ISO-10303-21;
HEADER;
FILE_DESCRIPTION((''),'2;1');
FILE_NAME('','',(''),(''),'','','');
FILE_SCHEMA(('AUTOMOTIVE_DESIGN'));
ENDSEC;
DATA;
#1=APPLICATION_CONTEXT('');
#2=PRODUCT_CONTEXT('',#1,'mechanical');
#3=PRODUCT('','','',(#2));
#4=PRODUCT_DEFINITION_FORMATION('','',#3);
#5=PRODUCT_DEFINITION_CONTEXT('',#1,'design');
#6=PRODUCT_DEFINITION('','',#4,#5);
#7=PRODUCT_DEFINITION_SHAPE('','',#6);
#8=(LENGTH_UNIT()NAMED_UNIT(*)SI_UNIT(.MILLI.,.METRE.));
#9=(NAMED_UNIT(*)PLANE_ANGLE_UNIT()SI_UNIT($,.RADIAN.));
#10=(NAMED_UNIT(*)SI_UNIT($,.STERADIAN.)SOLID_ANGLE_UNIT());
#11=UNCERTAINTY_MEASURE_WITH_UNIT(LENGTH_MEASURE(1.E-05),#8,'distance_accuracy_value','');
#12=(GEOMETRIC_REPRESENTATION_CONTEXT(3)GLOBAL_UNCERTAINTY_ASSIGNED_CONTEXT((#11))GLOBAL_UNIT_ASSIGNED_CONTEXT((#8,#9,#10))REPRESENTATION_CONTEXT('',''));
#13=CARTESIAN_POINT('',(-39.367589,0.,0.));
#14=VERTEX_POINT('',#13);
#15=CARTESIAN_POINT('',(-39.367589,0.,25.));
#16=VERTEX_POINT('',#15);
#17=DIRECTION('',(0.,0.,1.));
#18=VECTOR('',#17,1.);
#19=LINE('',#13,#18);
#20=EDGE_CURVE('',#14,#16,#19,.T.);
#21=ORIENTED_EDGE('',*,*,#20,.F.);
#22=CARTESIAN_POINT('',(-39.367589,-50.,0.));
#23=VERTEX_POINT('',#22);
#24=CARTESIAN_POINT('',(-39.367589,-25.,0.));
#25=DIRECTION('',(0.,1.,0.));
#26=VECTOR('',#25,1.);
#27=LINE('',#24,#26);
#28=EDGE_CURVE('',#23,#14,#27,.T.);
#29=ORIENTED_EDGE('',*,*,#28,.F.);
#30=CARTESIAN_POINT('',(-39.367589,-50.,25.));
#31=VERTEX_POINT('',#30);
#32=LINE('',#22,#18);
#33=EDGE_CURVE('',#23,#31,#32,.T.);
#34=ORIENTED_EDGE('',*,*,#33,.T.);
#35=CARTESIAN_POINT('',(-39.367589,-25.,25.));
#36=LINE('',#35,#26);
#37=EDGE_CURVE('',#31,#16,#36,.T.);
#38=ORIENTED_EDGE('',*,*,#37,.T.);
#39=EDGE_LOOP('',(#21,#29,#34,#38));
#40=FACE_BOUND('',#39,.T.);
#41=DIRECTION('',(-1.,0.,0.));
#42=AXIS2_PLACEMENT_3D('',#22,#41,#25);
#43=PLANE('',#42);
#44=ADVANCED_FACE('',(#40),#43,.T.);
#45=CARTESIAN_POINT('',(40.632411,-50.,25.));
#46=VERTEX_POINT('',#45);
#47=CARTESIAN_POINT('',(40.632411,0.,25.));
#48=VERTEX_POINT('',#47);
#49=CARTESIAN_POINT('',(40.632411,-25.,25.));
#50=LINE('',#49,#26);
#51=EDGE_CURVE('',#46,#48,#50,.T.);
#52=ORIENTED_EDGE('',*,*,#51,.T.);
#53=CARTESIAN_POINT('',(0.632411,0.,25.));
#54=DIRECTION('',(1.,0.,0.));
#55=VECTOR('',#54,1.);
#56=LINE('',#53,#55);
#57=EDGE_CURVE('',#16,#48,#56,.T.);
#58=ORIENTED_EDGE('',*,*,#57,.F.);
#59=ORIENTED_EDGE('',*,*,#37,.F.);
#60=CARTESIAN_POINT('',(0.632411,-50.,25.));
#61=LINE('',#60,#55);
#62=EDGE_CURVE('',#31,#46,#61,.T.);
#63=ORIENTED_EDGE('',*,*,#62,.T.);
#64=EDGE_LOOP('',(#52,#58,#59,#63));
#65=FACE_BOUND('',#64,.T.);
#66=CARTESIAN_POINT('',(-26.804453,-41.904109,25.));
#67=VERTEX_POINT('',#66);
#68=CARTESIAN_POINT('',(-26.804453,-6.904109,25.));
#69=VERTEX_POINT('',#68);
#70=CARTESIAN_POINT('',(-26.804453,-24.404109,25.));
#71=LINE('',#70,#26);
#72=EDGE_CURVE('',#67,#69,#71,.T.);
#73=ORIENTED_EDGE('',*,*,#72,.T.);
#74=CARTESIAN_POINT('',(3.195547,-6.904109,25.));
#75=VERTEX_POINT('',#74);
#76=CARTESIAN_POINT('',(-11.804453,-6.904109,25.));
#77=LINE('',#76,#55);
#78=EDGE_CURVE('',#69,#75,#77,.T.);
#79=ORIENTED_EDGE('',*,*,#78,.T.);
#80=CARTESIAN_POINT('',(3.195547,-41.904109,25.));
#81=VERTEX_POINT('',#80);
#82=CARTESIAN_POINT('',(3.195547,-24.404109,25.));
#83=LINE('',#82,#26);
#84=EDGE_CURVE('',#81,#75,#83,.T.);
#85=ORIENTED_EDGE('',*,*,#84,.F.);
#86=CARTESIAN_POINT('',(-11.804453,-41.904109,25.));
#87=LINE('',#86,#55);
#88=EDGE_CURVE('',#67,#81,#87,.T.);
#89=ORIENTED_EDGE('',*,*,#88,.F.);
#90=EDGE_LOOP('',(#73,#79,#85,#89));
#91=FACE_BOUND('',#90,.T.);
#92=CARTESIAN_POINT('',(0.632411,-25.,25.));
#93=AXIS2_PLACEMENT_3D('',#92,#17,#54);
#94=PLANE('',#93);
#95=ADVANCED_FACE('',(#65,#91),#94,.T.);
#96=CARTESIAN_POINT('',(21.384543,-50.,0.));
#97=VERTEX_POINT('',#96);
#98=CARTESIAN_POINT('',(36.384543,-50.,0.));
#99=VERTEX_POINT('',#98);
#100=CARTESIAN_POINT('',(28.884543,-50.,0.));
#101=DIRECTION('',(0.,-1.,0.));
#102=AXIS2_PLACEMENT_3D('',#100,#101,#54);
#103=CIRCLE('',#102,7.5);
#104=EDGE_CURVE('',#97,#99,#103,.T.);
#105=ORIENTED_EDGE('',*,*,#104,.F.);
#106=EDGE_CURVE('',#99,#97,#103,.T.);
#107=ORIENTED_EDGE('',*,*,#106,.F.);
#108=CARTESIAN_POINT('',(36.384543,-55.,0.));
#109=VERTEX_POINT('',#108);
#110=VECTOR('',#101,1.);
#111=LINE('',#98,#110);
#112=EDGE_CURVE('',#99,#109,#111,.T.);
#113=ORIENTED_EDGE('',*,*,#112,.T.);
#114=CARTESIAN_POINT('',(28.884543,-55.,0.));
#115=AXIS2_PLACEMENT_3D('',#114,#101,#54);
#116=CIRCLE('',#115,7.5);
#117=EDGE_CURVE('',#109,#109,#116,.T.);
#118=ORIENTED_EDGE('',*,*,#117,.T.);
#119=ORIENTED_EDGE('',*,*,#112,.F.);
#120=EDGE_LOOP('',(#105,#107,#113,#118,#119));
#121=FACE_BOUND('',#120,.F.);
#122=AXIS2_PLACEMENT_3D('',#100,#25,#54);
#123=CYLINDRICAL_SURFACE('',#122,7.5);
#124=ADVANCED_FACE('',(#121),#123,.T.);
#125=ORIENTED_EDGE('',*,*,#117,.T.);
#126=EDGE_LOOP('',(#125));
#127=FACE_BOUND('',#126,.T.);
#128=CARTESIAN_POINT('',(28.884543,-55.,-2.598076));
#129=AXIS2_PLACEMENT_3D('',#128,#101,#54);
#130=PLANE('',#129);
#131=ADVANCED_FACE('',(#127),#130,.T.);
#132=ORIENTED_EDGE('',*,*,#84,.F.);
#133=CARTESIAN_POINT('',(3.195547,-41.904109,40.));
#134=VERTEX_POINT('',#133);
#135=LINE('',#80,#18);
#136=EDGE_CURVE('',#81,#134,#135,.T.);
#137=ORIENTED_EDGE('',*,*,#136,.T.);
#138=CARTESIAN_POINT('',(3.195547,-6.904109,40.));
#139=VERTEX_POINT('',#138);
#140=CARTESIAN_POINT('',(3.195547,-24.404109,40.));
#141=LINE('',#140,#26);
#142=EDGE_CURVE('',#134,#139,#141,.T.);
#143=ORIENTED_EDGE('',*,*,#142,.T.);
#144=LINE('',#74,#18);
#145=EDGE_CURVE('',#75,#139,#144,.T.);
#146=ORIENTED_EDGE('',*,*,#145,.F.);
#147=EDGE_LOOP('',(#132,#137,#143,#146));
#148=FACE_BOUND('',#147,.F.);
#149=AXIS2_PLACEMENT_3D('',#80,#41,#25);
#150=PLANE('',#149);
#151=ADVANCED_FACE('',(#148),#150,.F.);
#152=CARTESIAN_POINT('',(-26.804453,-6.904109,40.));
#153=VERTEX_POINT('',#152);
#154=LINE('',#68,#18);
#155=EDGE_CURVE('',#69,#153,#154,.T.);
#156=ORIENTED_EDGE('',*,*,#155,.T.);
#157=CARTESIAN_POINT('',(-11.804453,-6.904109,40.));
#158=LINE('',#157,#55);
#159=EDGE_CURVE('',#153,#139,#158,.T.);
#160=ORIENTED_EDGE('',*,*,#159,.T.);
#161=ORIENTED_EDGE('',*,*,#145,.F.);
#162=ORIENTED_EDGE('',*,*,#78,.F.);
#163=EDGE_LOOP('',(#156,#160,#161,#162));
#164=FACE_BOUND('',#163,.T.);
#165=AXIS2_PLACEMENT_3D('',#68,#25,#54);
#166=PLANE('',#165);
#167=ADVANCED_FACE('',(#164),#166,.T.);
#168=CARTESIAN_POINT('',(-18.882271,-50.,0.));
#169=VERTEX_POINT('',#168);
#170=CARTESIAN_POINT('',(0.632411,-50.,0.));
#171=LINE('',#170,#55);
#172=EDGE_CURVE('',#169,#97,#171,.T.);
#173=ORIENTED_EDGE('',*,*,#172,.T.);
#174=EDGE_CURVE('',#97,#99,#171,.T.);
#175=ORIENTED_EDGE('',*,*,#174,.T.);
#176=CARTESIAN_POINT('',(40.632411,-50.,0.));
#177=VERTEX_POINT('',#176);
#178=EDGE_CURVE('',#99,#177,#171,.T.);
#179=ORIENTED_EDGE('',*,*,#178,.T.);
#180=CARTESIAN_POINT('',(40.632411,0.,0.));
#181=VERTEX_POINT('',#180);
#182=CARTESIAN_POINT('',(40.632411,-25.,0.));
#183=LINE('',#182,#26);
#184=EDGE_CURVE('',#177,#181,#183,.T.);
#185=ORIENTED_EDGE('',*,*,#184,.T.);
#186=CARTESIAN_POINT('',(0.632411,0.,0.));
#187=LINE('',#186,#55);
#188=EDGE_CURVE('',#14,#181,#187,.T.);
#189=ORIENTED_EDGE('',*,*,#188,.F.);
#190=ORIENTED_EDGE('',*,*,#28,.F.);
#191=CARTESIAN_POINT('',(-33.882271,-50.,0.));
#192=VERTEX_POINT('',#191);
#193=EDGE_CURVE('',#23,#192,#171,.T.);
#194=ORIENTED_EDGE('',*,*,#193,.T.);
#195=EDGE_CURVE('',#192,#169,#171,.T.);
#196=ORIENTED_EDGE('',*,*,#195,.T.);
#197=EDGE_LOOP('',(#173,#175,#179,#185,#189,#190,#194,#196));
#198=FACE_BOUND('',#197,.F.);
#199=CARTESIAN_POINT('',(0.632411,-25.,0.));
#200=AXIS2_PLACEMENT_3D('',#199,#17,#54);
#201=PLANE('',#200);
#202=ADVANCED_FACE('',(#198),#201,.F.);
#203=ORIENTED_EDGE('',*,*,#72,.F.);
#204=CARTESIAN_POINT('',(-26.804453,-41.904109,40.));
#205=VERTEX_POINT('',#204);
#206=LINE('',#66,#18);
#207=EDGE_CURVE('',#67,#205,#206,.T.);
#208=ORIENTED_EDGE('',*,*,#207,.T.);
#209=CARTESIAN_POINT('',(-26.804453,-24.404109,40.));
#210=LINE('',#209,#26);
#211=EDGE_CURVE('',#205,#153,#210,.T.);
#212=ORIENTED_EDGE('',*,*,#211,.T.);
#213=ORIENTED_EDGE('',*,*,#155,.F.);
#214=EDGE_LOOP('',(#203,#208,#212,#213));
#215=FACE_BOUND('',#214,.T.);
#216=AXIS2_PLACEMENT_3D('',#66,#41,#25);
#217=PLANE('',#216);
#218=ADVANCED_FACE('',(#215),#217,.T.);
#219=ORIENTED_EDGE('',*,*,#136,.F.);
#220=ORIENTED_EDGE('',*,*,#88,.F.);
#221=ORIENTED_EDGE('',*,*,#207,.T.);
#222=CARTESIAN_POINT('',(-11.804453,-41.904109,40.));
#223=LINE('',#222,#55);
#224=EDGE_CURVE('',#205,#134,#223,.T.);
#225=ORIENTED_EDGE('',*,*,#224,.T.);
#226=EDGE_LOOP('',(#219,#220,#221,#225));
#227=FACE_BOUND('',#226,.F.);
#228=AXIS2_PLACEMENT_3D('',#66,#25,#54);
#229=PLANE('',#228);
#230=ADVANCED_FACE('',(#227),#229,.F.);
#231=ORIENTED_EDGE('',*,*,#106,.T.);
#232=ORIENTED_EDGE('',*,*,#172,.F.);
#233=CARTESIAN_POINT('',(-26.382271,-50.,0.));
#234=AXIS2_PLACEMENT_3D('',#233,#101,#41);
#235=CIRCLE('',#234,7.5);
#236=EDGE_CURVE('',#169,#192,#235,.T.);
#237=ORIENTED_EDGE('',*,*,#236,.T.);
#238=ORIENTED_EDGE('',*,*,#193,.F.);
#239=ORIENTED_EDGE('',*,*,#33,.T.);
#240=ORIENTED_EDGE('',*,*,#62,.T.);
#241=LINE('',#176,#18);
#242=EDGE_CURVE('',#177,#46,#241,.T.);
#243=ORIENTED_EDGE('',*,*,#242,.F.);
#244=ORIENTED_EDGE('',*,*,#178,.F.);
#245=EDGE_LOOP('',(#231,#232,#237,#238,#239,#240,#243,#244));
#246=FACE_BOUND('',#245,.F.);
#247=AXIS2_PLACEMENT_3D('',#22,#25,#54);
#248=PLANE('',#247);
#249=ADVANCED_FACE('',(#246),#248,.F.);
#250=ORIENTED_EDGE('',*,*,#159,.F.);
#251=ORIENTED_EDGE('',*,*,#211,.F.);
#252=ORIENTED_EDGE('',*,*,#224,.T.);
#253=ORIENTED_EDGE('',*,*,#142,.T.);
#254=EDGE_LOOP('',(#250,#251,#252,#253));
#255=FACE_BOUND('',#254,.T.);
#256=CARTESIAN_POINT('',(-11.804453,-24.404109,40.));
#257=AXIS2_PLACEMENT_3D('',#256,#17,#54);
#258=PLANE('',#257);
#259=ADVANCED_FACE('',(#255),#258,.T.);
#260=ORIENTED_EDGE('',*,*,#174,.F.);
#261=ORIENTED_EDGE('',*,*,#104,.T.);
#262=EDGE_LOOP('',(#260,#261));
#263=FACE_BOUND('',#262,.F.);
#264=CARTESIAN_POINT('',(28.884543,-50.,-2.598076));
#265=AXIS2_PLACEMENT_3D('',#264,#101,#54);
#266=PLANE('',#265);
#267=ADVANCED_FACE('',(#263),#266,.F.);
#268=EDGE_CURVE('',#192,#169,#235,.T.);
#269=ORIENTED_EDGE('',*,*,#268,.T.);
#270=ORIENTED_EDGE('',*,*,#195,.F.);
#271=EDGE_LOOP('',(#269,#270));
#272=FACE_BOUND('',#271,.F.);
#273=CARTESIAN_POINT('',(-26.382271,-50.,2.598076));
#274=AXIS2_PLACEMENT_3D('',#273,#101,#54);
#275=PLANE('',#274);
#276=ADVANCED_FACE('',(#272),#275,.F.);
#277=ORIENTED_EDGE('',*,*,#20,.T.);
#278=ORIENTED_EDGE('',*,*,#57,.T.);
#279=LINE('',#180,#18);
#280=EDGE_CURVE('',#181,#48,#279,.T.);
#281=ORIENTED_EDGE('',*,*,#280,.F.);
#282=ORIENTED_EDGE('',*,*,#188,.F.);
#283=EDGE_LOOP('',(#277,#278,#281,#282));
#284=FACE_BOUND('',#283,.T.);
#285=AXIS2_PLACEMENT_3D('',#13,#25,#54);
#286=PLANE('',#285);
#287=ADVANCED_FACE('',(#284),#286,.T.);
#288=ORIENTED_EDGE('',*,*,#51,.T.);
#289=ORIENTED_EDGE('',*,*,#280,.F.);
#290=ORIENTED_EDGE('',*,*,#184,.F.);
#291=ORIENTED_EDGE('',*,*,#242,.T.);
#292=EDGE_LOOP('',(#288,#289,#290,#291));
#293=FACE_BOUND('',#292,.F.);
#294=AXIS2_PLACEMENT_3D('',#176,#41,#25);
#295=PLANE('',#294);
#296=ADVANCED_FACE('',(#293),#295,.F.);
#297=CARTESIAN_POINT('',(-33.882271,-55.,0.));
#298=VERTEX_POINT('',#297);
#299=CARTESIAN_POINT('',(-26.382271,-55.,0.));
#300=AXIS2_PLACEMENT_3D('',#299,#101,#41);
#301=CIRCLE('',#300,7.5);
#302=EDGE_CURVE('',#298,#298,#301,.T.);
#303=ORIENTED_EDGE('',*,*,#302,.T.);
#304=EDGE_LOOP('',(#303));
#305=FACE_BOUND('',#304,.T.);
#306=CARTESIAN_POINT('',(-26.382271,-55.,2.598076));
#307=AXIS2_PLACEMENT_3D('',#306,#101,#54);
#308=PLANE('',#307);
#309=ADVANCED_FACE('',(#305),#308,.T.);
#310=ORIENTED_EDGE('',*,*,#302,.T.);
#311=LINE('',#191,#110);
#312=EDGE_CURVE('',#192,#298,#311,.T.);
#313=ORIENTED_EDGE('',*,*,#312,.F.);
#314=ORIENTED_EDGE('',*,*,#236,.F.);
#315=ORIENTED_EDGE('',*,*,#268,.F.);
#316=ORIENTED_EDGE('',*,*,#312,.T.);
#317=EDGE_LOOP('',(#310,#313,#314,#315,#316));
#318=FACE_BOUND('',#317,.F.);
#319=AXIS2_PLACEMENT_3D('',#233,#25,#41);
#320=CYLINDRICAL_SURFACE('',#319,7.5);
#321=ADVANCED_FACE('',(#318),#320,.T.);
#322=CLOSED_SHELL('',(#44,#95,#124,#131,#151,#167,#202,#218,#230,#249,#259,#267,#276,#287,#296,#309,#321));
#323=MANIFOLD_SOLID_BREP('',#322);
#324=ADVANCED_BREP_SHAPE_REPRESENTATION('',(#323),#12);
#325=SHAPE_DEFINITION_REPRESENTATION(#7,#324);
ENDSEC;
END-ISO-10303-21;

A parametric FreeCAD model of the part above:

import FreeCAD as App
import Part
import Sketcher
from FreeCAD import Vector
Q = App.Units.Quantity

doc = App.newDocument("Part")
params = doc.addObject("Spreadsheet::Sheet", "Params")
for row, (alias, value) in enumerate([
    ("sketch1_width", "80 mm"),
    ("sketch1_height", "50 mm"),
    ("pad1_length", "25 mm"),
    ("sketch2_width", "30 mm"),
    ("sketch2_height", "35 mm"),
    ("pad2_length", "15 mm"),
    ("sketch3_diameter", "15 mm"),
    ("pad3_length", "5 mm"),
], start=1):
    params.set(f"A{row}", alias)
    params.set(f"B{row}", "=" + value)
    params.setAlias(f"B{row}", alias)

body = doc.addObject("PartDesign::Body", "Body")

# Sketch on XY plane
sketch1 = body.newObject("Sketcher::SketchObject", "Sketch")
sketch1.AttachmentSupport = (doc.getObject("XY_Plane"), [""])
sketch1.MapMode = "FlatFace"
sketch1.addGeometry([
    Part.LineSegment(Vector(-39, 0, 0), Vector(-39, -50, 0)),
    Part.LineSegment(Vector(-39, -50, 0), Vector(41, -50, 0)),
    Part.LineSegment(Vector(41, -50, 0), Vector(41, 0, 0)),
    Part.LineSegment(Vector(41, 0, 0), Vector(-39, 0, 0)),
], False)
sketch1.addConstraint([
    Sketcher.Constraint("Coincident", 0, 2, 1, 1),
    Sketcher.Constraint("Coincident", 1, 2, 2, 1),
    Sketcher.Constraint("Coincident", 2, 2, 3, 1),
    Sketcher.Constraint("Coincident", 3, 2, 0, 1),
    Sketcher.Constraint("Vertical", 0),
    Sketcher.Constraint("Horizontal", 1),
    Sketcher.Constraint("Vertical", 2),
    Sketcher.Constraint("Horizontal", 3),
    Sketcher.Constraint("PointOnObject", 2, 2, -1),
    Sketcher.Constraint("DistanceX", 1, 1, 1, 2, Q("80 mm")),
    Sketcher.Constraint("DistanceY", 0, 2, 0, 1, Q("50 mm")),
    Sketcher.Constraint("DistanceX", 0, 2, -1, 1, Q("39.367589 mm")),
])
sketch1.setExpression("Constraints[9]", "Params.sketch1_width")
sketch1.setExpression("Constraints[10]", "Params.sketch1_height")
pad1 = body.newObject("PartDesign::Pad", "Pad")
pad1.Profile = sketch1
pad1.setExpression("Length", "Params.pad1_length")

# Sketch on XY plane
sketch2 = body.newObject("Sketcher::SketchObject", "Sketch001")
sketch2.AttachmentSupport = (doc.getObject("XY_Plane"), [""])
sketch2.MapMode = "FlatFace"
sketch2.AttachmentOffset = App.Placement(Vector(0, 0, 25), App.Rotation())
sketch2.addGeometry([
    Part.LineSegment(Vector(-27, -7, 0), Vector(-27, -42, 0)),
    Part.LineSegment(Vector(-27, -42, 0), Vector(3, -42, 0)),
    Part.LineSegment(Vector(3, -42, 0), Vector(3, -7, 0)),
    Part.LineSegment(Vector(3, -7, 0), Vector(-27, -7, 0)),
], False)
sketch2.addConstraint([
    Sketcher.Constraint("Coincident", 0, 2, 1, 1),
    Sketcher.Constraint("Coincident", 1, 2, 2, 1),
    Sketcher.Constraint("Coincident", 2, 2, 3, 1),
    Sketcher.Constraint("Coincident", 3, 2, 0, 1),
    Sketcher.Constraint("Vertical", 0),
    Sketcher.Constraint("Horizontal", 1),
    Sketcher.Constraint("Vertical", 2),
    Sketcher.Constraint("Horizontal", 3),
    Sketcher.Constraint("DistanceX", 1, 1, 1, 2, Q("30 mm")),
    Sketcher.Constraint("DistanceY", 0, 2, 0, 1, Q("35 mm")),
    Sketcher.Constraint("DistanceY", 0, 2, -1, 1, Q("41.904109 mm")),
    Sketcher.Constraint("DistanceX", 0, 2, -1, 1, Q("26.804453 mm")),
])
sketch2.setExpression("Constraints[8]", "Params.sketch2_width")
sketch2.setExpression("Constraints[9]", "Params.sketch2_height")
pad2 = body.newObject("PartDesign::Pad", "Pad001")
pad2.Profile = sketch2
pad2.setExpression("Length", "Params.pad2_length")

# Sketch on XZ plane
sketch3 = body.newObject("Sketcher::SketchObject", "Sketch002")
sketch3.AttachmentSupport = (doc.getObject("XZ_Plane"), [""])
sketch3.MapMode = "FlatFace"
sketch3.AttachmentOffset = App.Placement(Vector(0, 0, 50), App.Rotation())
sketch3.addGeometry([
    Part.Circle(Vector(-26, 0, 0), Vector(0, 0, 1), 8),
    Part.Circle(Vector(29, 0, 0), Vector(0, 0, 1), 8),
], False)
sketch3.addConstraint([
    Sketcher.Constraint("Equal", 0, 1),
    Sketcher.Constraint("PointOnObject", 0, 3, -1),
    Sketcher.Constraint("PointOnObject", 1, 3, -1),
    Sketcher.Constraint("Diameter", 0, Q("15 mm")),
    Sketcher.Constraint("DistanceX", 0, 3, -1, 1, Q("26.382271 mm")),
    Sketcher.Constraint("DistanceX", -1, 1, 1, 3, Q("28.884543 mm")),
])
sketch3.setExpression("Constraints[3]", "Params.sketch3_diameter")
pad3 = body.newObject("PartDesign::Pad", "Pad002")
pad3.Profile = sketch3
pad3.setExpression("Length", "Params.pad3_length")

doc.recompute()
